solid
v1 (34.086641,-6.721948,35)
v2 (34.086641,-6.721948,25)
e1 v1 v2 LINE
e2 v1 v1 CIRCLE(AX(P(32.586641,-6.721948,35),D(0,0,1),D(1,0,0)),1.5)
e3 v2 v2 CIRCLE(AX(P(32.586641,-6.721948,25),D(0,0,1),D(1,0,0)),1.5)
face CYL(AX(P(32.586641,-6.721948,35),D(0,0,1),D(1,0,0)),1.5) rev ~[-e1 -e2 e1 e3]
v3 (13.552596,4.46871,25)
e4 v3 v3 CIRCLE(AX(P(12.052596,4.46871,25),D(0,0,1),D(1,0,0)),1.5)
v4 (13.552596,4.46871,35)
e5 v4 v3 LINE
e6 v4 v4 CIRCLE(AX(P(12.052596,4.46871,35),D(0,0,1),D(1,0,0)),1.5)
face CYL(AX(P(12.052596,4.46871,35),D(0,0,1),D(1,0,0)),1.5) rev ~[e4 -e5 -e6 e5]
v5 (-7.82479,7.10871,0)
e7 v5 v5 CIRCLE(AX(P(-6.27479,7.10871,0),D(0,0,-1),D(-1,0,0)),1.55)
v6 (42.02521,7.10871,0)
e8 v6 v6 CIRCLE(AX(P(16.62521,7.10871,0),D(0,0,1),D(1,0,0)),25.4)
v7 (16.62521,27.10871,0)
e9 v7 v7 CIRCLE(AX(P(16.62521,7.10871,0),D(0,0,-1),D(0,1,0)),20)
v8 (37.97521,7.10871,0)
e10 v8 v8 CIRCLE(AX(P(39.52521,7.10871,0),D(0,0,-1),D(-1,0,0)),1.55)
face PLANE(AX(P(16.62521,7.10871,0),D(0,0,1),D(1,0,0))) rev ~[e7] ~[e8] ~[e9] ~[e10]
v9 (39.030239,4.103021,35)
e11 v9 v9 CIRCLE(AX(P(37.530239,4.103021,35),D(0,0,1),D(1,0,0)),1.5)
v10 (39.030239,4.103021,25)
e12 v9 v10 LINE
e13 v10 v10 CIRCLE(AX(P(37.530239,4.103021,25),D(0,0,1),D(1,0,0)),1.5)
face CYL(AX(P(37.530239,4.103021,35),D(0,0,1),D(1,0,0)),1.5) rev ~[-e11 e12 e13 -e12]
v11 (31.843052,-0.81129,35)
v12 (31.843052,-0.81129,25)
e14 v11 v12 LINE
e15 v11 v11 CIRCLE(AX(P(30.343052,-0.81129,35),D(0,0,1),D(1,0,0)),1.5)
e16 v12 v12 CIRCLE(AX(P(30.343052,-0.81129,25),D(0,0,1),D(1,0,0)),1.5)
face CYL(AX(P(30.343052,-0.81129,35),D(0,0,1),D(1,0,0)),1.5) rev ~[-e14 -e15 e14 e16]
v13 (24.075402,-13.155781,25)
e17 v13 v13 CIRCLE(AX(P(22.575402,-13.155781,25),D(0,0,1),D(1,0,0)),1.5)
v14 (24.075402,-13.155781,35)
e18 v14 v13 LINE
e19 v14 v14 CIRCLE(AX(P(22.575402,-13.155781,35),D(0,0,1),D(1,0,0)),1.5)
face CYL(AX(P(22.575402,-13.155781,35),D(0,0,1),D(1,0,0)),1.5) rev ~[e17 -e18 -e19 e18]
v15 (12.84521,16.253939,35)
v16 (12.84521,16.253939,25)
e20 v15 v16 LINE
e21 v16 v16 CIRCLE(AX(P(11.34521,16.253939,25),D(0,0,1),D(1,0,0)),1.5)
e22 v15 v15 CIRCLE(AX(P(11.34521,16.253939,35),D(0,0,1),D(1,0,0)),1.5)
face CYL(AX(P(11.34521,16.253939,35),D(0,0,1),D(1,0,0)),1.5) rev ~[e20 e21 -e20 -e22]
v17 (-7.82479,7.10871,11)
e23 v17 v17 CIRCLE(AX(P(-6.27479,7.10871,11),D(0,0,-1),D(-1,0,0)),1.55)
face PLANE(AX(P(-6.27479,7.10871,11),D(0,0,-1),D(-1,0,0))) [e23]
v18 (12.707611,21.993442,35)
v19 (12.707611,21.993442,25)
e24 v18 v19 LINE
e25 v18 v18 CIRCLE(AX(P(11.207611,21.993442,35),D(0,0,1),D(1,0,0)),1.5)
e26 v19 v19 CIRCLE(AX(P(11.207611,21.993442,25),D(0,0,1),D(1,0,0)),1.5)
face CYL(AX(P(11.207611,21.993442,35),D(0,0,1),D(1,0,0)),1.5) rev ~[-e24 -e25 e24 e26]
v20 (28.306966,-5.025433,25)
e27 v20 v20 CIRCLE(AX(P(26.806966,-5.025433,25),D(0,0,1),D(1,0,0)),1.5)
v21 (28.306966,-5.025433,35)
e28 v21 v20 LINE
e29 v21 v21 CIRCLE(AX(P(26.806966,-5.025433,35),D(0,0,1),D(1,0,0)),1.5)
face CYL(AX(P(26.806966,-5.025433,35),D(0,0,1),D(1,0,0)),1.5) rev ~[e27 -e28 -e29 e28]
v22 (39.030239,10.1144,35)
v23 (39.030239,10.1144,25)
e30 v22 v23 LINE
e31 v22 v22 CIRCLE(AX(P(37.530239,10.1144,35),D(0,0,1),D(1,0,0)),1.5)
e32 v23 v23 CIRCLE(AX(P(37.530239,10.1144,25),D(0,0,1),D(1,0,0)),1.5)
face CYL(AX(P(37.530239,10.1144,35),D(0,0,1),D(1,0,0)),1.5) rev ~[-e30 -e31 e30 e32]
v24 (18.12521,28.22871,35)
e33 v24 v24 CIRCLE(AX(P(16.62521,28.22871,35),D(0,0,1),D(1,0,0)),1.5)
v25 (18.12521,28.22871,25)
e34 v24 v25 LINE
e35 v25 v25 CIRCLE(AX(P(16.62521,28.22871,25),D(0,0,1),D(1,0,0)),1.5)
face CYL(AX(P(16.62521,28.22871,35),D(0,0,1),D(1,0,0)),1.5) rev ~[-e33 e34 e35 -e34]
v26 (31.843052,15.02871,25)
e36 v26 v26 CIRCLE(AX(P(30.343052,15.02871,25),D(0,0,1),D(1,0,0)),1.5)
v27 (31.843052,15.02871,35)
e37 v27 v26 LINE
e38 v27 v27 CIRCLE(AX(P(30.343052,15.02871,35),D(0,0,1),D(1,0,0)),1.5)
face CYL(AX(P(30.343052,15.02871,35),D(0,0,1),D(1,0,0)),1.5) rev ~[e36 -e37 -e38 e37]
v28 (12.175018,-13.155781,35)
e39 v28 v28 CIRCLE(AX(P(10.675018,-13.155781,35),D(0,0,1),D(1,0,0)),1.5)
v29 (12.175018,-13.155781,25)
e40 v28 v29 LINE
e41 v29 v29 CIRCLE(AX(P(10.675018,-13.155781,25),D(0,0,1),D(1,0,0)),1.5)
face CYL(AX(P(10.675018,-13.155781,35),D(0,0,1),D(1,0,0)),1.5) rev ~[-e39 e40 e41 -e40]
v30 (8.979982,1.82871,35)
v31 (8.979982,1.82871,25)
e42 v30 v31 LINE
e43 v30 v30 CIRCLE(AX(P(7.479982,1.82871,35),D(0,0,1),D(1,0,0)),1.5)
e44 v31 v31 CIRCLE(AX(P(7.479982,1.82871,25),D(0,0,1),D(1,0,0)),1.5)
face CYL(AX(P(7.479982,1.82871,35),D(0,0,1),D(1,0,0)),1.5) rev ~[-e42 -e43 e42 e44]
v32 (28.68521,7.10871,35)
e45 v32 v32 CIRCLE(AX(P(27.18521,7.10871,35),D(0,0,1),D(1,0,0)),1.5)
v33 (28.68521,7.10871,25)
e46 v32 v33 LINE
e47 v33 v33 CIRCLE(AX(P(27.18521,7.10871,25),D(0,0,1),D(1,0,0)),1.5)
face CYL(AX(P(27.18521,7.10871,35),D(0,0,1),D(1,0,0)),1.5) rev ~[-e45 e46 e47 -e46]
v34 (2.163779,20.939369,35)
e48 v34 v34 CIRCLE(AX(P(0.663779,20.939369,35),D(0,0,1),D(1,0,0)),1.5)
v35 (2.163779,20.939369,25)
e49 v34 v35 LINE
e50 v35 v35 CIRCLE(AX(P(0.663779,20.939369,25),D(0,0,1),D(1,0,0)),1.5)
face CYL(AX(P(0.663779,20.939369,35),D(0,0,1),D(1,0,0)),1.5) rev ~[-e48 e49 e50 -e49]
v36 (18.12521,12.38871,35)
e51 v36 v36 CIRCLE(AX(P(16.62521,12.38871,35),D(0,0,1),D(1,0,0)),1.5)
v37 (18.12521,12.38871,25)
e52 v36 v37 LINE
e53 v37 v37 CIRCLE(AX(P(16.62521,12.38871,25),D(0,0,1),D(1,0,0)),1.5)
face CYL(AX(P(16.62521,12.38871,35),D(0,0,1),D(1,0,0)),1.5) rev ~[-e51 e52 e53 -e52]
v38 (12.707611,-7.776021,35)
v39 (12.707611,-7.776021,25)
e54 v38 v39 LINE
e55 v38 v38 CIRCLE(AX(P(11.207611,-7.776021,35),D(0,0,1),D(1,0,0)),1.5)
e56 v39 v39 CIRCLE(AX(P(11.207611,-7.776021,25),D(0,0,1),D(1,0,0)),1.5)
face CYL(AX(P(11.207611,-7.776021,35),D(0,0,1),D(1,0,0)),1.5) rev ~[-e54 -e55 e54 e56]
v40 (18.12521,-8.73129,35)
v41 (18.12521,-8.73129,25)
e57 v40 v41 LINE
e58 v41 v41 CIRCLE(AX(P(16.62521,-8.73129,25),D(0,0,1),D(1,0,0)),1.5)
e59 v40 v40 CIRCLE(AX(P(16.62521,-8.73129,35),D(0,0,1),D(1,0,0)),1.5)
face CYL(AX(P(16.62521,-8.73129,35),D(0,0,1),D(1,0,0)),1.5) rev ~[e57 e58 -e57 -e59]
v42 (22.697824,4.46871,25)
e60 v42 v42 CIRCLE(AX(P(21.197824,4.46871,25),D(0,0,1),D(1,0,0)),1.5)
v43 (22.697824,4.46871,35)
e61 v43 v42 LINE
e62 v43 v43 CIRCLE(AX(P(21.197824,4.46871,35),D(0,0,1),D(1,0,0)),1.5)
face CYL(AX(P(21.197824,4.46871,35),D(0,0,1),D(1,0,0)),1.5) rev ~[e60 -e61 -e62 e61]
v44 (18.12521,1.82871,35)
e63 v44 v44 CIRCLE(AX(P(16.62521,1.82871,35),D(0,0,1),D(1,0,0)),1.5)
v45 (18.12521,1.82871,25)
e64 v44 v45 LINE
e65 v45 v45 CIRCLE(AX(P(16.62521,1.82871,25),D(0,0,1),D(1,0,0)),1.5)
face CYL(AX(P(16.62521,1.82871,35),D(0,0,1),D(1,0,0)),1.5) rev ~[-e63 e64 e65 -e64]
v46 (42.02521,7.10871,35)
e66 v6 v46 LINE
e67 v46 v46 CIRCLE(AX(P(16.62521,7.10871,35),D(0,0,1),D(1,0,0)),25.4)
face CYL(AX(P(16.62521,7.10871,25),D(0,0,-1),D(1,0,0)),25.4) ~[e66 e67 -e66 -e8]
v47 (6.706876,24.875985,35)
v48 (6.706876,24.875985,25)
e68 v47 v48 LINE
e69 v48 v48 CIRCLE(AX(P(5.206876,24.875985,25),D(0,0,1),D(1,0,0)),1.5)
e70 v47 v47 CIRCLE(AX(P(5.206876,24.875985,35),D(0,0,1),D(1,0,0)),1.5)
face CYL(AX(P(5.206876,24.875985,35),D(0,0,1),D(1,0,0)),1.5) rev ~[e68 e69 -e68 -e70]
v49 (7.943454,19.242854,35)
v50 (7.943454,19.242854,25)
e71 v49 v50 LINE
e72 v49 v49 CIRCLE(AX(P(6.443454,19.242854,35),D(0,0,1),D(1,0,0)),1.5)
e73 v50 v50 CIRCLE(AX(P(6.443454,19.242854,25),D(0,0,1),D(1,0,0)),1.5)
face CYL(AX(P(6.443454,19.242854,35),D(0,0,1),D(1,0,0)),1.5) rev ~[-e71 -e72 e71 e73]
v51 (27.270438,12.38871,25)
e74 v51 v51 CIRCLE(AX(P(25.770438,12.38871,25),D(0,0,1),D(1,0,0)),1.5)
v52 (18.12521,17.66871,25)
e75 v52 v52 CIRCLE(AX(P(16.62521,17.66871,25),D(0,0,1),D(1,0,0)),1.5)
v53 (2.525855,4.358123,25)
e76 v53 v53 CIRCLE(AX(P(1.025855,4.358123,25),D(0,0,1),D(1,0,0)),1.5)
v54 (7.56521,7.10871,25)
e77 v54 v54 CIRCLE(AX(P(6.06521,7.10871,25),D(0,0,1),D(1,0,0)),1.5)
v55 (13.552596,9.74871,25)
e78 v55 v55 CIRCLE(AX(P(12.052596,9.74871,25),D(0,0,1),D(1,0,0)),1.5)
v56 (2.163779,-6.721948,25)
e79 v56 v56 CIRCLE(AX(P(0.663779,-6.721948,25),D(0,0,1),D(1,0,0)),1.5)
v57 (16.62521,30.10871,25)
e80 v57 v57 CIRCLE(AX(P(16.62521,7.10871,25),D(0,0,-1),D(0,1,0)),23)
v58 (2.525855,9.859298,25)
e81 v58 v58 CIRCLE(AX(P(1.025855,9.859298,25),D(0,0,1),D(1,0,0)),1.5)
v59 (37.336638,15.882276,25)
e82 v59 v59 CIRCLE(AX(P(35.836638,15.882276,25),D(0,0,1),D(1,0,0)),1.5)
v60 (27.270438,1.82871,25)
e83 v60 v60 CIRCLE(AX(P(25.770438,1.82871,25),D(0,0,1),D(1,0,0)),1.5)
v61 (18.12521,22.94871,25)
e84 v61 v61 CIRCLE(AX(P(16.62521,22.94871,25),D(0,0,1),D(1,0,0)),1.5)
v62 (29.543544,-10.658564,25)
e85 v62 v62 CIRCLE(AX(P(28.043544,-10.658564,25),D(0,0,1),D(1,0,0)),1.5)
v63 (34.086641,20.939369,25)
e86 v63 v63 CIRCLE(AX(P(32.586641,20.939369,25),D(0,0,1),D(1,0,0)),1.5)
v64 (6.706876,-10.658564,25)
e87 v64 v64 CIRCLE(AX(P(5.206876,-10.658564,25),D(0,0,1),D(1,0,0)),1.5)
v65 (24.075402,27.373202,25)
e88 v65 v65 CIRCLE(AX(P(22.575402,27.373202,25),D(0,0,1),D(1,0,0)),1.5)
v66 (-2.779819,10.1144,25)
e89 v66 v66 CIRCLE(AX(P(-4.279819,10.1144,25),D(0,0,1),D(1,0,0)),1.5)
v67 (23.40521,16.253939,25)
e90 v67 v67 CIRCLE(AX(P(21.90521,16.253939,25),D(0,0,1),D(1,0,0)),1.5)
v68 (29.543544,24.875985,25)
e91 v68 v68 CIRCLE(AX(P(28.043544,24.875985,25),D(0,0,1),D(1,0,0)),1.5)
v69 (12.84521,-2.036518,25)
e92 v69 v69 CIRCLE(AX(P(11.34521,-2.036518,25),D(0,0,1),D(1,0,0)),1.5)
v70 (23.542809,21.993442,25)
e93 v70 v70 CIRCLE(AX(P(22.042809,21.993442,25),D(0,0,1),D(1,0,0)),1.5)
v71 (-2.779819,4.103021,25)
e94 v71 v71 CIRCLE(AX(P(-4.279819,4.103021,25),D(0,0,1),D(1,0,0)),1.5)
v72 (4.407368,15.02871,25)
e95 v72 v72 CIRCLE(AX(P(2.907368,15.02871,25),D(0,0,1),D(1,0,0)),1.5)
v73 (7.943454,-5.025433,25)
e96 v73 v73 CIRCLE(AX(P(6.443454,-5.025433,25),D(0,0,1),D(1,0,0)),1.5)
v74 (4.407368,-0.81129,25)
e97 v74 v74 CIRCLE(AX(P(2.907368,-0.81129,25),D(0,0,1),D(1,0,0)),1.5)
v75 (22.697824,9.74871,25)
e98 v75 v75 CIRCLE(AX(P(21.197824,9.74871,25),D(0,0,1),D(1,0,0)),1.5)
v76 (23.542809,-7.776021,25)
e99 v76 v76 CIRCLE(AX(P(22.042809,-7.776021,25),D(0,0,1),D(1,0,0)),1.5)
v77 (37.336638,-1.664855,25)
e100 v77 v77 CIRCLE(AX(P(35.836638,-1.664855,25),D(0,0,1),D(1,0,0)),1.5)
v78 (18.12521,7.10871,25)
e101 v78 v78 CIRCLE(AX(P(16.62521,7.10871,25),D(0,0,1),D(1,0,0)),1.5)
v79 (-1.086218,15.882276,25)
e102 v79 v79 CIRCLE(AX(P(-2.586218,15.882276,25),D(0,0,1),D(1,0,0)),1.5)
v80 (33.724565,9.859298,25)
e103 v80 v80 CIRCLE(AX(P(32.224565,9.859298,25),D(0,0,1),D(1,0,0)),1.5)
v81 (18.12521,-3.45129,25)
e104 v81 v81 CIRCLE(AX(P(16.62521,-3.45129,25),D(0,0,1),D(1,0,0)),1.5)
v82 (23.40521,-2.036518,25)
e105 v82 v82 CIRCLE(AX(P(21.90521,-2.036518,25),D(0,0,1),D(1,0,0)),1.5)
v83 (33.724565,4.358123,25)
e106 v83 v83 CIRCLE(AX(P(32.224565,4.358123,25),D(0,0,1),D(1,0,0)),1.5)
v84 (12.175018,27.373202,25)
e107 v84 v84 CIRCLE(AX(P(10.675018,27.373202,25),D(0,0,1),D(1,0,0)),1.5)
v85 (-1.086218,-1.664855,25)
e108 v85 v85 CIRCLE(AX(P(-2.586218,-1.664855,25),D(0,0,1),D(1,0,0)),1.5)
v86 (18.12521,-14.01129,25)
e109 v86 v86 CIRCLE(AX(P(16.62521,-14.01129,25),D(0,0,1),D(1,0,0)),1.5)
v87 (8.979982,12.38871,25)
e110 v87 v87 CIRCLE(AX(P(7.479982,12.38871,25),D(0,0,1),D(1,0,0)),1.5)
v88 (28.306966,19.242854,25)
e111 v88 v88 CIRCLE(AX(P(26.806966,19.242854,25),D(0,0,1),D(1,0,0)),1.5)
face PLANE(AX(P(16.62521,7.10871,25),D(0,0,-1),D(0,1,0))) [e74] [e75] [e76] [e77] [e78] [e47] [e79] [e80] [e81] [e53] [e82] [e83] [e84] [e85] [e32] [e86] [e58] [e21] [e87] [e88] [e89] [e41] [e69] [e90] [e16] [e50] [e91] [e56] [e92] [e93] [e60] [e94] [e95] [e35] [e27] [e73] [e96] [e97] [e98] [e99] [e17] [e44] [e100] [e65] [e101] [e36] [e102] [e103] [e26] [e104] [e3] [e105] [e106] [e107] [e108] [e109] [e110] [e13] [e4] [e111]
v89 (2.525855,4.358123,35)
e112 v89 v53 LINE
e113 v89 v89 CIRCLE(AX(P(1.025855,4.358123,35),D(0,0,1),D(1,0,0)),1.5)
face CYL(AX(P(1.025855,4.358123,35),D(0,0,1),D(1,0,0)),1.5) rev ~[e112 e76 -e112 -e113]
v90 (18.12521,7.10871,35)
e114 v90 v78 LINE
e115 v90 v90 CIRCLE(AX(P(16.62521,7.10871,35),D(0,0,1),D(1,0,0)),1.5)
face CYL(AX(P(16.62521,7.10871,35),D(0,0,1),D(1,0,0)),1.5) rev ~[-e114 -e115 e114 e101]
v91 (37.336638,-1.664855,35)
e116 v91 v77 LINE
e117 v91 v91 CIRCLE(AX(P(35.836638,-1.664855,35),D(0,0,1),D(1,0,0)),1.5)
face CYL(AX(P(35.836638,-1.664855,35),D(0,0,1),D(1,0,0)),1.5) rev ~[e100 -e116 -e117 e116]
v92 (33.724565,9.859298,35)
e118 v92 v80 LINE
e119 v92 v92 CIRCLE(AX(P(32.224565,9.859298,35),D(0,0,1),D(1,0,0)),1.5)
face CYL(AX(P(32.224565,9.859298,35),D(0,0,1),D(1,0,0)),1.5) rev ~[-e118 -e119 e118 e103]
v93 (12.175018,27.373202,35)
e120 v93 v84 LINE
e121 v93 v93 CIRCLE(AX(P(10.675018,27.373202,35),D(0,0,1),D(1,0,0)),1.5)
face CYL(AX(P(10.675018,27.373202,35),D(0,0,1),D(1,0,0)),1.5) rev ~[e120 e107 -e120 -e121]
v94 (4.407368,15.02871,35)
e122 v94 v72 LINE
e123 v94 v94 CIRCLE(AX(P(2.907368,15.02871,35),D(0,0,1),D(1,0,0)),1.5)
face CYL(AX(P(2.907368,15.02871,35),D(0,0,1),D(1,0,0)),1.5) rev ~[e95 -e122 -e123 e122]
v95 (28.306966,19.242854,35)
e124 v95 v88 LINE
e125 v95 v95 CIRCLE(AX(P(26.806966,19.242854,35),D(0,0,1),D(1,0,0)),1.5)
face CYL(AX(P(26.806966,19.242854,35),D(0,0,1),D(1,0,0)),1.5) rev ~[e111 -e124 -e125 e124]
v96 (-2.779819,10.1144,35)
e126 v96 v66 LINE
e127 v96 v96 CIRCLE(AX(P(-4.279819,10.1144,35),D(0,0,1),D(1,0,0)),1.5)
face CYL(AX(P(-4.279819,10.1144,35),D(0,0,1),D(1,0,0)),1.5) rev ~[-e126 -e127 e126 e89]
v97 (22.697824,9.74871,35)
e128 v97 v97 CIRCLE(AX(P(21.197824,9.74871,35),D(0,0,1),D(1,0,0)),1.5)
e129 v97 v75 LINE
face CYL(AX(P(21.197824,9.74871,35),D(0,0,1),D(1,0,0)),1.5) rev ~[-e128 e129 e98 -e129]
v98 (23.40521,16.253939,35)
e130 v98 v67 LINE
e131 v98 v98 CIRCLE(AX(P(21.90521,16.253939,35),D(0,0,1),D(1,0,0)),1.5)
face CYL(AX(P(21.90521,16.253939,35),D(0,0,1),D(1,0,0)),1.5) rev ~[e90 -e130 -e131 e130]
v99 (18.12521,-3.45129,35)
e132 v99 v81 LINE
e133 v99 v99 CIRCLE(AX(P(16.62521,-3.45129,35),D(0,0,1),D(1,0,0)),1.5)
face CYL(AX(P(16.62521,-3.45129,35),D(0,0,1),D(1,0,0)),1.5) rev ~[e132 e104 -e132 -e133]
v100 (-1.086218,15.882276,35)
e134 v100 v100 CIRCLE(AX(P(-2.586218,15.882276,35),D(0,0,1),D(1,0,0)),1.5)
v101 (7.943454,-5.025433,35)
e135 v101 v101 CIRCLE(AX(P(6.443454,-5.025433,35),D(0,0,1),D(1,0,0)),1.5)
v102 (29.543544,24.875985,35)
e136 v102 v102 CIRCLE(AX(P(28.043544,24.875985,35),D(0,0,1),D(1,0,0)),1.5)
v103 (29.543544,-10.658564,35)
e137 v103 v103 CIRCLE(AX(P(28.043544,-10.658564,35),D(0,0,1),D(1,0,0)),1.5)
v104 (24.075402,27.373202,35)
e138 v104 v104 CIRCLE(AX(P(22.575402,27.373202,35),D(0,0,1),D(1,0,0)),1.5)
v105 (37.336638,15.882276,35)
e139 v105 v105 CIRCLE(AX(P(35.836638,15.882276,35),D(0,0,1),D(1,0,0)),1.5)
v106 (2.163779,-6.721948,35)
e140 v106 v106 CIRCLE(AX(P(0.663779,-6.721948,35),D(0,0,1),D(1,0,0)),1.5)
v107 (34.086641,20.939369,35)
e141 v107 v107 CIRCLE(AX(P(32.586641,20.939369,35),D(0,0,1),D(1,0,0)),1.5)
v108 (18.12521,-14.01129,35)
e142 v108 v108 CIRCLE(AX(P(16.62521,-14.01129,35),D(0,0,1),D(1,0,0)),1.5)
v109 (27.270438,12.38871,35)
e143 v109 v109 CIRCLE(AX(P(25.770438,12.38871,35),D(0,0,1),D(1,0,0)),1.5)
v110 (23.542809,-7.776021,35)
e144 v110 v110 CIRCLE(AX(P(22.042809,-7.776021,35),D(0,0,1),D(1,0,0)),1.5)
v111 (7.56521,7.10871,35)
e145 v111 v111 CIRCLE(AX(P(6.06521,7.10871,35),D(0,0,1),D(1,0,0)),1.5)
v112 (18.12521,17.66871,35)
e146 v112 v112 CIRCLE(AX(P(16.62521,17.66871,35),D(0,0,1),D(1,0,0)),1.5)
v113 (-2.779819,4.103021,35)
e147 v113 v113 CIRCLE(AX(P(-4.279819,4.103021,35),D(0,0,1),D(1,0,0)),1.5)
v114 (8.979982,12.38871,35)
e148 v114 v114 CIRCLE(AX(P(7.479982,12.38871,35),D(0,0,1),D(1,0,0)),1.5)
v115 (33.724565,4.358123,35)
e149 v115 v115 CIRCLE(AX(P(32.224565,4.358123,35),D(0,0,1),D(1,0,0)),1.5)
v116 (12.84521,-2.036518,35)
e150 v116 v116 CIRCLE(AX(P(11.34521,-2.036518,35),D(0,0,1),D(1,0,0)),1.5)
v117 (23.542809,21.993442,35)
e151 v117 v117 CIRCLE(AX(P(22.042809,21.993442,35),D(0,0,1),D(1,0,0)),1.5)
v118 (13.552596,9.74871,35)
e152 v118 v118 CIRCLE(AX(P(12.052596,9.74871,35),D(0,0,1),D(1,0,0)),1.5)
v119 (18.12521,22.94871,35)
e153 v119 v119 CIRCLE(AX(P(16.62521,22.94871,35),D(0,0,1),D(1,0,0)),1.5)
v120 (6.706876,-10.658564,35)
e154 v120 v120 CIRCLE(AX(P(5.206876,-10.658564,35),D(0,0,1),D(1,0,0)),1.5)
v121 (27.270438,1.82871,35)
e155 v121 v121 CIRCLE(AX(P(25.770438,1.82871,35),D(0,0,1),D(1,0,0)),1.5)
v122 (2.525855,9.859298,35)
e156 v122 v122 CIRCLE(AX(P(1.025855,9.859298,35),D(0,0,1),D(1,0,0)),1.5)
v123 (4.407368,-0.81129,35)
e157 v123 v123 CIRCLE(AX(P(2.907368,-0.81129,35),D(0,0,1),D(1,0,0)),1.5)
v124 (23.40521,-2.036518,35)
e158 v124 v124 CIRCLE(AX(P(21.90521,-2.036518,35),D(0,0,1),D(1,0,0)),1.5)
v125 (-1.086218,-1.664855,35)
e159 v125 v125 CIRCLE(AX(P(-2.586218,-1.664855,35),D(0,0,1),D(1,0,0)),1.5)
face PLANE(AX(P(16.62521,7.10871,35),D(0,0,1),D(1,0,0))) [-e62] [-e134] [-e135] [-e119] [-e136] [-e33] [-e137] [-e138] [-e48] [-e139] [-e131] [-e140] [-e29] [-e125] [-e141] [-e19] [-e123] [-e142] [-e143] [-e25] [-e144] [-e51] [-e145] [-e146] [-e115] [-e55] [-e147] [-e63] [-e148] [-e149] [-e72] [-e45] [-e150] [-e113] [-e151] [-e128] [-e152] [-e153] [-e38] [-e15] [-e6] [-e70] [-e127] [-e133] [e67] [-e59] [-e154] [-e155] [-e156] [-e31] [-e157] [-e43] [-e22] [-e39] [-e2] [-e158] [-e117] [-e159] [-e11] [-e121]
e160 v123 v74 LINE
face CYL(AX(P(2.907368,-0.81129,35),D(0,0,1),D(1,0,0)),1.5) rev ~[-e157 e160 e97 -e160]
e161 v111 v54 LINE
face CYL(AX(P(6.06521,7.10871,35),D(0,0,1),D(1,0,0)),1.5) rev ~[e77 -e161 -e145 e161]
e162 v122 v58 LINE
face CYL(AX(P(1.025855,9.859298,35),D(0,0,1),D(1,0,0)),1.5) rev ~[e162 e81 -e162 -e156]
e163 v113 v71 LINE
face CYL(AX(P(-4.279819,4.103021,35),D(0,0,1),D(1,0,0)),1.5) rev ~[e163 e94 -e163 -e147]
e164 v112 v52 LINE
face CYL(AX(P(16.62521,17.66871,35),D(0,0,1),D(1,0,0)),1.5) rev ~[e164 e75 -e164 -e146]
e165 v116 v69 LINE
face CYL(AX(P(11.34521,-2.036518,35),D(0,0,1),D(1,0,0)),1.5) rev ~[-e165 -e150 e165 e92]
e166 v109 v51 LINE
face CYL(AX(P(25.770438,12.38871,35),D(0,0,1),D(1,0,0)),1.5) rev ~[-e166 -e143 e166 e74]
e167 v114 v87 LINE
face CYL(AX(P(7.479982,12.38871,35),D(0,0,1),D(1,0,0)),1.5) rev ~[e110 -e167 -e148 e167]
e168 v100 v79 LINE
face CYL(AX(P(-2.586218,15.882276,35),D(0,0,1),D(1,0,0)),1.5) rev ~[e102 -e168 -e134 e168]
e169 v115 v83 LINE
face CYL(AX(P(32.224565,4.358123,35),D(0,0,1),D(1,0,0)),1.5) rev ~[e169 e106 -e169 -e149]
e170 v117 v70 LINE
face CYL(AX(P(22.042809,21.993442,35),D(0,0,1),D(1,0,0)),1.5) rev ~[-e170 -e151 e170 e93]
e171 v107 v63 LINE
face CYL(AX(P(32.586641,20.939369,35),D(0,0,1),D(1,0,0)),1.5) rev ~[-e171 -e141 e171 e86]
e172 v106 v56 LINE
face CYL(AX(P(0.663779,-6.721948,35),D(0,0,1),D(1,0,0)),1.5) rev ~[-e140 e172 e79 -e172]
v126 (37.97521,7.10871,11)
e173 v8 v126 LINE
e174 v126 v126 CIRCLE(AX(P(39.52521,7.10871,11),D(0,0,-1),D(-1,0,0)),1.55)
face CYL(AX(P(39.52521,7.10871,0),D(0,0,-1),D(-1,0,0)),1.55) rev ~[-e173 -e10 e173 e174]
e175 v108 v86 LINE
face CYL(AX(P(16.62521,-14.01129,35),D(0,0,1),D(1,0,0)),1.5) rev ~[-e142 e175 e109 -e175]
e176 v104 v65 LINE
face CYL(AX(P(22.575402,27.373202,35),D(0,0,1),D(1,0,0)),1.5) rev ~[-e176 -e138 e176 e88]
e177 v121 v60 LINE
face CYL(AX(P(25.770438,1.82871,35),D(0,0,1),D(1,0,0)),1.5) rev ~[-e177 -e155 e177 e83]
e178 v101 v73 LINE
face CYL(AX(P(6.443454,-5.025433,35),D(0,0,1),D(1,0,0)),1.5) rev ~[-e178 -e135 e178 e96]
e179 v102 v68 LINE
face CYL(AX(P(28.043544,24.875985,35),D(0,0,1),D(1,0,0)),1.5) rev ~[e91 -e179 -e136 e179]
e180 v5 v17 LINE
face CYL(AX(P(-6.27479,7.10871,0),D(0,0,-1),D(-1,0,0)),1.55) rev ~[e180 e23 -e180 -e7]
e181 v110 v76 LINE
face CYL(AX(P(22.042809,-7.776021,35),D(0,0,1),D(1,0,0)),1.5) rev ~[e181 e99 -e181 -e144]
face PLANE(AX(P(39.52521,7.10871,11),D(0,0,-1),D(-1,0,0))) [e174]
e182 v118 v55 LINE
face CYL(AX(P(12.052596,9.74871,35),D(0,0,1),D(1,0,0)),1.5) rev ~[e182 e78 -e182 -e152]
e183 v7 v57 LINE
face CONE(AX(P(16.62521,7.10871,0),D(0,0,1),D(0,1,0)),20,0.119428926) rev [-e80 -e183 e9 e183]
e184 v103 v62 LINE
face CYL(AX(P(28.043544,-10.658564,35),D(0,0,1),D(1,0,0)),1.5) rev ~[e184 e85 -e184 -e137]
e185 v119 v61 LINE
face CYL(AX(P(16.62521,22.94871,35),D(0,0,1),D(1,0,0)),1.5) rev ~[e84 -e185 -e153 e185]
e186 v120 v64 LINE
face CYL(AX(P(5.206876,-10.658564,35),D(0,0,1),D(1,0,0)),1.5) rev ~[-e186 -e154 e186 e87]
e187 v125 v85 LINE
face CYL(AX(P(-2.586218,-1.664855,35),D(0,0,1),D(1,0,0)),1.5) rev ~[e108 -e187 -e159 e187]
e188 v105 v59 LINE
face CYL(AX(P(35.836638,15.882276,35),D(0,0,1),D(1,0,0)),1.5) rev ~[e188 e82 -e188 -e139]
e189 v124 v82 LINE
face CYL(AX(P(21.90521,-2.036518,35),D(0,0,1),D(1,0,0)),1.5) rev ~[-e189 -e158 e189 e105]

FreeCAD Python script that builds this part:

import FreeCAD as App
import Part
import Sketcher
Q = App.Units.Quantity

doc = App.newDocument("Part")
body = doc.addObject("PartDesign::Body", "Body")

# Sketch on XY plane
sketch1 = body.newObject("Sketcher::SketchObject", "Sketch")
sketch1.AttachmentSupport = (doc.getObject("XY_Plane"), [""])
sketch1.MapMode = "FlatFace"
sketch1.addGeometry(Part.Circle(App.Vector(16.62521, 7.10871, 0), App.Vector(0, 0, 1), 25.4), False)
sketch1.addConstraint(Sketcher.Constraint("Diameter", 0, Q("50.8 mm")))
sketch1.addConstraint(Sketcher.Constraint("DistanceX", -1, 1, 0, 3, Q("16.62521 mm")))
sketch1.addConstraint(Sketcher.Constraint("DistanceY", -1, 1, 0, 3, Q("7.10871 mm")))
pad1 = body.newObject("PartDesign::Pad", "Pad")
pad1.Profile = sketch1
pad1.Length = 25

# Sketch on XY plane
sketch2 = body.newObject("Sketcher::SketchObject", "Sketch001")
sketch2.AttachmentSupport = (doc.getObject("XY_Plane"), [""])
sketch2.MapMode = "FlatFace"
sketch2.addGeometry(Part.Circle(App.Vector(39.52521, 7.10871, 0), App.Vector(0, 0, 1), 1.55), False)
sketch2.addGeometry(Part.Circle(App.Vector(-6.27479, 7.10871, 0), App.Vector(0, 0, 1), 1.55), False)
sketch2.addConstraint(Sketcher.Constraint("Equal", 0, 1))
sketch2.addConstraint(Sketcher.Constraint("Horizontal", 0, 3, 1, 3))
sketch2.addConstraint(Sketcher.Constraint("Diameter", 0, Q("3.1 mm")))
sketch2.addConstraint(Sketcher.Constraint("DistanceX", 1, 3, 0, 3, Q("45.8 mm")))
sketch2.addConstraint(Sketcher.Constraint("DistanceX", -1, 1, 0, 3, Q("39.52521 mm")))
sketch2.addConstraint(Sketcher.Constraint("DistanceY", -1, 1, 0, 3, Q("7.10871 mm")))
pocket1 = body.newObject("PartDesign::Pocket", "Pocket")
pocket1.Profile = sketch2
pocket1.Length = 11
pocket1.Reversed = True

# Sketch on XY plane
sketch3 = body.newObject("Sketcher::SketchObject", "Sketch002")
sketch3.AttachmentSupport = (doc.getObject("XY_Plane"), [""])
sketch3.MapMode = "FlatFace"
sketch3.AttachmentOffset = App.Placement(App.Vector(0, 0, 25), App.Rotation())
sketch3.addGeometry(Part.Circle(App.Vector(16.62521, 7.10871, 0), App.Vector(0, 0, 1), 25.4), False)
sketch3.addConstraint(Sketcher.Constraint("Diameter", 0, Q("50.8 mm")))
sketch3.addConstraint(Sketcher.Constraint("DistanceX", -1, 1, 0, 3, Q("16.62521 mm")))
sketch3.addConstraint(Sketcher.Constraint("DistanceY", -1, 1, 0, 3, Q("7.10871 mm")))
pad2 = body.newObject("PartDesign::Pad", "Pad001")
pad2.Profile = sketch3
pad2.Length = 10

# Sketch on XY plane
sketch4 = body.newObject("Sketcher::SketchObject", "Sketch003")
sketch4.AttachmentSupport = (doc.getObject("XY_Plane"), [""])
sketch4.MapMode = "FlatFace"
sketch4.AttachmentOffset = App.Placement(App.Vector(0, 0, 35), App.Rotation())
sketch4.addGeometry(Part.Circle(App.Vector(16.62521, 7.10871, 0), App.Vector(0, 0, 1), 1.5), False)
sketch4.addGeometry(Part.Circle(App.Vector(16.62521, 12.38871, 0), App.Vector(0, 0, 1), 1.5), False)
sketch4.addGeometry(Part.Circle(App.Vector(21.197824, 9.74871, 0), App.Vector(0, 0, 1), 1.5), False)
sketch4.addGeometry(Part.Circle(App.Vector(21.197824, 4.46871, 0), App.Vector(0, 0, 1), 1.5), False)
sketch4.addGeometry(Part.Circle(App.Vector(16.62521, 1.82871, 0), App.Vector(0, 0, 1), 1.5), False)
sketch4.addGeometry(Part.Circle(App.Vector(12.052596, 4.46871, 0), App.Vector(0, 0, 1), 1.5), False)
sketch4.addGeometry(Part.Circle(App.Vector(12.052596, 9.74871, 0), App.Vector(0, 0, 1), 1.5), False)
sketch4.addGeometry(Part.Circle(App.Vector(16.62521, 17.66871, 0), App.Vector(0, 0, 1), 1.5), False)
sketch4.addGeometry(Part.Circle(App.Vector(21.90521, 16.253939, 0), App.Vector(0, 0, 1), 1.5), False)
sketch4.addGeometry(Part.Circle(App.Vector(25.770438, 12.38871, 0), App.Vector(0, 0, 1), 1.5), False)
sketch4.addGeometry(Part.Circle(App.Vector(27.18521, 7.10871, 0), App.Vector(0, 0, 1), 1.5), False)
sketch4.addGeometry(Part.Circle(App.Vector(25.770438, 1.82871, 0), App.Vector(0, 0, 1), 1.5), False)
sketch4.addGeometry(Part.Circle(App.Vector(21.90521, -2.036518, 0), App.Vector(0, 0, 1), 1.5), False)
sketch4.addGeometry(Part.Circle(App.Vector(16.62521, -3.45129, 0), App.Vector(0, 0, 1), 1.5), False)
sketch4.addGeometry(Part.Circle(App.Vector(11.34521, -2.036518, 0), App.Vector(0, 0, 1), 1.5), False)
sketch4.addGeometry(Part.Circle(App.Vector(7.479982, 1.82871, 0), App.Vector(0, 0, 1), 1.5), False)
sketch4.addGeometry(Part.Circle(App.Vector(6.06521, 7.10871, 0), App.Vector(0, 0, 1), 1.5), False)
sketch4.addGeometry(Part.Circle(App.Vector(7.479982, 12.38871, 0), App.Vector(0, 0, 1), 1.5), False)
sketch4.addGeometry(Part.Circle(App.Vector(11.34521, 16.253939, 0), App.Vector(0, 0, 1), 1.5), False)
sketch4.addGeometry(Part.Circle(App.Vector(16.62521, 22.94871, 0), App.Vector(0, 0, 1), 1.5), False)
sketch4.addGeometry(Part.Circle(App.Vector(22.042809, 21.993442, 0), App.Vector(0, 0, 1), 1.5), False)
sketch4.addGeometry(Part.Circle(App.Vector(26.806966, 19.242854, 0), App.Vector(0, 0, 1), 1.5), False)
sketch4.addGeometry(Part.Circle(App.Vector(30.343052, 15.02871, 0), App.Vector(0, 0, 1), 1.5), False)
sketch4.addGeometry(Part.Circle(App.Vector(32.224565, 9.859298, 0), App.Vector(0, 0, 1), 1.5), False)
sketch4.addGeometry(Part.Circle(App.Vector(32.224565, 4.358123, 0), App.Vector(0, 0, 1), 1.5), False)
sketch4.addGeometry(Part.Circle(App.Vector(30.343052, -0.81129, 0), App.Vector(0, 0, 1), 1.5), False)
sketch4.addGeometry(Part.Circle(App.Vector(26.806966, -5.025433, 0), App.Vector(0, 0, 1), 1.5), False)
sketch4.addGeometry(Part.Circle(App.Vector(22.042809, -7.776021, 0), App.Vector(0, 0, 1), 1.5), False)
sketch4.addGeometry(Part.Circle(App.Vector(16.62521, -8.73129, 0), App.Vector(0, 0, 1), 1.5), False)
sketch4.addGeometry(Part.Circle(App.Vector(11.207611, -7.776021, 0), App.Vector(0, 0, 1), 1.5), False)
sketch4.addGeometry(Part.Circle(App.Vector(6.443454, -5.025433, 0), App.Vector(0, 0, 1), 1.5), False)
sketch4.addGeometry(Part.Circle(App.Vector(2.907368, -0.81129, 0), App.Vector(0, 0, 1), 1.5), False)
sketch4.addGeometry(Part.Circle(App.Vector(1.025855, 4.358123, 0), App.Vector(0, 0, 1), 1.5), False)
sketch4.addGeometry(Part.Circle(App.Vector(1.025855, 9.859298, 0), App.Vector(0, 0, 1), 1.5), False)
sketch4.addGeometry(Part.Circle(App.Vector(2.907368, 15.02871, 0), App.Vector(0, 0, 1), 1.5), False)
sketch4.addGeometry(Part.Circle(App.Vector(6.443454, 19.242854, 0), App.Vector(0, 0, 1), 1.5), False)
sketch4.addGeometry(Part.Circle(App.Vector(11.207611, 21.993442, 0), App.Vector(0, 0, 1), 1.5), False)
sketch4.addGeometry(Part.Circle(App.Vector(16.62521, 28.22871, 0), App.Vector(0, 0, 1), 1.5), False)
sketch4.addGeometry(Part.Circle(App.Vector(22.575402, 27.373202, 0), App.Vector(0, 0, 1), 1.5), False)
sketch4.addGeometry(Part.Circle(App.Vector(28.043544, 24.875985, 0), App.Vector(0, 0, 1), 1.5), False)
sketch4.addGeometry(Part.Circle(App.Vector(32.586641, 20.939369, 0), App.Vector(0, 0, 1), 1.5), False)
sketch4.addGeometry(Part.Circle(App.Vector(35.836638, 15.882276, 0), App.Vector(0, 0, 1), 1.5), False)
sketch4.addGeometry(Part.Circle(App.Vector(37.530239, 10.1144, 0), App.Vector(0, 0, 1), 1.5), False)
sketch4.addGeometry(Part.Circle(App.Vector(37.530239, 4.103021, 0), App.Vector(0, 0, 1), 1.5), False)
sketch4.addGeometry(Part.Circle(App.Vector(35.836638, -1.664855, 0), App.Vector(0, 0, 1), 1.5), False)
sketch4.addGeometry(Part.Circle(App.Vector(32.586641, -6.721948, 0), App.Vector(0, 0, 1), 1.5), False)
sketch4.addGeometry(Part.Circle(App.Vector(28.043544, -10.658564, 0), App.Vector(0, 0, 1), 1.5), False)
sketch4.addGeometry(Part.Circle(App.Vector(22.575402, -13.155781, 0), App.Vector(0, 0, 1), 1.5), False)
sketch4.addGeometry(Part.Circle(App.Vector(16.62521, -14.01129, 0), App.Vector(0, 0, 1), 1.5), False)
sketch4.addGeometry(Part.Circle(App.Vector(10.675018, -13.155781, 0), App.Vector(0, 0, 1), 1.5), False)
sketch4.addGeometry(Part.Circle(App.Vector(5.206876, -10.658564, 0), App.Vector(0, 0, 1), 1.5), False)
sketch4.addGeometry(Part.Circle(App.Vector(0.663779, -6.721948, 0), App.Vector(0, 0, 1), 1.5), False)
sketch4.addGeometry(Part.Circle(App.Vector(-2.586218, -1.664855, 0), App.Vector(0, 0, 1), 1.5), False)
sketch4.addGeometry(Part.Circle(App.Vector(-4.279819, 4.103021, 0), App.Vector(0, 0, 1), 1.5), False)
sketch4.addGeometry(Part.Circle(App.Vector(-4.279819, 10.1144, 0), App.Vector(0, 0, 1), 1.5), False)
sketch4.addGeometry(Part.Circle(App.Vector(-2.586218, 15.882276, 0), App.Vector(0, 0, 1), 1.5), False)
sketch4.addGeometry(Part.Circle(App.Vector(0.663779, 20.939369, 0), App.Vector(0, 0, 1), 1.5), False)
sketch4.addGeometry(Part.Circle(App.Vector(5.206876, 24.875985, 0), App.Vector(0, 0, 1), 1.5), False)
sketch4.addGeometry(Part.Circle(App.Vector(10.675018, 27.373202, 0), App.Vector(0, 0, 1), 1.5), False)
sketch4.addConstraint(Sketcher.Constraint("Equal", 0, 1))
sketch4.addConstraint(Sketcher.Constraint("Equal", 1, 2))
sketch4.addConstraint(Sketcher.Constraint("Equal", 2, 3))
sketch4.addConstraint(Sketcher.Constraint("Equal", 3, 4))
sketch4.addConstraint(Sketcher.Constraint("Equal", 4, 5))
sketch4.addConstraint(Sketcher.Constraint("Equal", 5, 6))
sketch4.addConstraint(Sketcher.Constraint("Equal", 6, 7))
sketch4.addConstraint(Sketcher.Constraint("Equal", 7, 8))
sketch4.addConstraint(Sketcher.Constraint("Equal", 8, 9))
sketch4.addConstraint(Sketcher.Constraint("Equal", 9, 10))
sketch4.addConstraint(Sketcher.Constraint("Equal", 10, 11))
sketch4.addConstraint(Sketcher.Constraint("Equal", 11, 12))
sketch4.addConstraint(Sketcher.Constraint("Equal", 12, 13))
sketch4.addConstraint(Sketcher.Constraint("Equal", 13, 14))
sketch4.addConstraint(Sketcher.Constraint("Equal", 14, 15))
sketch4.addConstraint(Sketcher.Constraint("Equal", 15, 16))
sketch4.addConstraint(Sketcher.Constraint("Equal", 16, 17))
sketch4.addConstraint(Sketcher.Constraint("Equal", 17, 18))
sketch4.addConstraint(Sketcher.Constraint("Equal", 18, 19))
sketch4.addConstraint(Sketcher.Constraint("Equal", 19, 20))
sketch4.addConstraint(Sketcher.Constraint("Equal", 20, 21))
sketch4.addConstraint(Sketcher.Constraint("Equal", 21, 22))
sketch4.addConstraint(Sketcher.Constraint("Equal", 22, 23))
sketch4.addConstraint(Sketcher.Constraint("Equal", 23, 24))
sketch4.addConstraint(Sketcher.Constraint("Equal", 24, 25))
sketch4.addConstraint(Sketcher.Constraint("Equal", 25, 26))
sketch4.addConstraint(Sketcher.Constraint("Equal", 26, 27))
sketch4.addConstraint(Sketcher.Constraint("Equal", 27, 28))
sketch4.addConstraint(Sketcher.Constraint("Equal", 28, 29))
sketch4.addConstraint(Sketcher.Constraint("Equal", 29, 30))
sketch4.addConstraint(Sketcher.Constraint("Equal", 30, 31))
sketch4.addConstraint(Sketcher.Constraint("Equal", 31, 32))
sketch4.addConstraint(Sketcher.Constraint("Equal", 32, 33))
sketch4.addConstraint(Sketcher.Constraint("Equal", 33, 34))
sketch4.addConstraint(Sketcher.Constraint("Equal", 34, 35))
sketch4.addConstraint(Sketcher.Constraint("Equal", 35, 36))
sketch4.addConstraint(Sketcher.Constraint("Equal", 36, 37))
sketch4.addConstraint(Sketcher.Constraint("Equal", 37, 38))
sketch4.addConstraint(Sketcher.Constraint("Equal", 38, 39))
sketch4.addConstraint(Sketcher.Constraint("Equal", 39, 40))
sketch4.addConstraint(Sketcher.Constraint("Equal", 40, 41))
sketch4.addConstraint(Sketcher.Constraint("Equal", 41, 42))
sketch4.addConstraint(Sketcher.Constraint("Equal", 42, 43))
sketch4.addConstraint(Sketcher.Constraint("Equal", 43, 44))
sketch4.addConstraint(Sketcher.Constraint("Equal", 44, 45))
sketch4.addConstraint(Sketcher.Constraint("Equal", 45, 46))
sketch4.addConstraint(Sketcher.Constraint("Equal", 46, 47))
sketch4.addConstraint(Sketcher.Constraint("Equal", 47, 48))
sketch4.addConstraint(Sketcher.Constraint("Equal", 48, 49))
sketch4.addConstraint(Sketcher.Constraint("Equal", 49, 50))
sketch4.addConstraint(Sketcher.Constraint("Equal", 50, 51))
sketch4.addConstraint(Sketcher.Constraint("Equal", 51, 52))
sketch4.addConstraint(Sketcher.Constraint("Equal", 52, 53))
sketch4.addConstraint(Sketcher.Constraint("Equal", 53, 54))
sketch4.addConstraint(Sketcher.Constraint("Equal", 54, 55))
sketch4.addConstraint(Sketcher.Constraint("Equal", 55, 56))
sketch4.addConstraint(Sketcher.Constraint("Equal", 56, 57))
sketch4.addConstraint(Sketcher.Constraint("Equal", 57, 58))
sketch4.addConstraint(Sketcher.Constraint("Horizontal", 3, 3, 5, 3))
sketch4.addConstraint(Sketcher.Constraint("Horizontal", 2, 3, 6, 3))
sketch4.addConstraint(Sketcher.Constraint("Horizontal", 1, 3, 9, 3))
sketch4.addConstraint(Sketcher.Constraint("Horizontal", 0, 3, 10, 3))
sketch4.addConstraint(Sketcher.Constraint("Horizontal", 4, 3, 11, 3))
sketch4.addConstraint(Sketcher.Constraint("Horizontal", 12, 3, 14, 3))
sketch4.addConstraint(Sketcher.Constraint("Horizontal", 11, 3, 15, 3))
sketch4.addConstraint(Sketcher.Constraint("Horizontal", 10, 3, 16, 3))
sketch4.addConstraint(Sketcher.Constraint("Horizontal", 9, 3, 17, 3))
sketch4.addConstraint(Sketcher.Constraint("Horizontal", 8, 3, 18, 3))
sketch4.addConstraint(Sketcher.Constraint("Horizontal", 27, 3, 29, 3))
sketch4.addConstraint(Sketcher.Constraint("Horizontal", 26, 3, 30, 3))
sketch4.addConstraint(Sketcher.Constraint("Horizontal", 25, 3, 31, 3))
sketch4.addConstraint(Sketcher.Constraint("Horizontal", 24, 3, 32, 3))
sketch4.addConstraint(Sketcher.Constraint("Horizontal", 23, 3, 33, 3))
sketch4.addConstraint(Sketcher.Constraint("Horizontal", 22, 3, 34, 3))
sketch4.addConstraint(Sketcher.Constraint("Horizontal", 21, 3, 35, 3))
sketch4.addConstraint(Sketcher.Constraint("Horizontal", 20, 3, 36, 3))
sketch4.addConstraint(Sketcher.Constraint("Horizontal", 47, 3, 49, 3))
sketch4.addConstraint(Sketcher.Constraint("Horizontal", 46, 3, 50, 3))
sketch4.addConstraint(Sketcher.Constraint("Horizontal", 45, 3, 51, 3))
sketch4.addConstraint(Sketcher.Constraint("Horizontal", 44, 3, 52, 3))
sketch4.addConstraint(Sketcher.Constraint("Horizontal", 43, 3, 53, 3))
sketch4.addConstraint(Sketcher.Constraint("Horizontal", 42, 3, 54, 3))
sketch4.addConstraint(Sketcher.Constraint("Horizontal", 41, 3, 55, 3))
sketch4.addConstraint(Sketcher.Constraint("Horizontal", 40, 3, 56, 3))
sketch4.addConstraint(Sketcher.Constraint("Horizontal", 39, 3, 57, 3))
sketch4.addConstraint(Sketcher.Constraint("Horizontal", 38, 3, 58, 3))
sketch4.addConstraint(Sketcher.Constraint("Vertical", 0, 3, 1, 3))
sketch4.addConstraint(Sketcher.Constraint("Vertical", 2, 3, 3, 3))
sketch4.addConstraint(Sketcher.Constraint("Vertical", 1, 3, 4, 3))
sketch4.addConstraint(Sketcher.Constraint("Vertical", 5, 3, 6, 3))
sketch4.addConstraint(Sketcher.Constraint("Vertical", 4, 3, 7, 3))
sketch4.addConstraint(Sketcher.Constraint("Vertical", 9, 3, 11, 3))
sketch4.addConstraint(Sketcher.Constraint("Vertical", 8, 3, 12, 3))
sketch4.addConstraint(Sketcher.Constraint("Vertical", 7, 3, 13, 3))
sketch4.addConstraint(Sketcher.Constraint("Vertical", 15, 3, 17, 3))
sketch4.addConstraint(Sketcher.Constraint("Vertical", 14, 3, 18, 3))
sketch4.addConstraint(Sketcher.Constraint("Vertical", 13, 3, 19, 3))
sketch4.addConstraint(Sketcher.Constraint("Vertical", 23, 3, 24, 3))
sketch4.addConstraint(Sketcher.Constraint("Vertical", 22, 3, 25, 3))
sketch4.addConstraint(Sketcher.Constraint("Vertical", 21, 3, 26, 3))
sketch4.addConstraint(Sketcher.Constraint("Vertical", 20, 3, 27, 3))
sketch4.addConstraint(Sketcher.Constraint("Vertical", 19, 3, 28, 3))
sketch4.addConstraint(Sketcher.Constraint("Vertical", 32, 3, 33, 3))
sketch4.addConstraint(Sketcher.Constraint("Vertical", 31, 3, 34, 3))
sketch4.addConstraint(Sketcher.Constraint("Vertical", 30, 3, 35, 3))
sketch4.addConstraint(Sketcher.Constraint("Vertical", 29, 3, 36, 3))
sketch4.addConstraint(Sketcher.Constraint("Vertical", 28, 3, 37, 3))
sketch4.addConstraint(Sketcher.Constraint("Vertical", 42, 3, 43, 3))
sketch4.addConstraint(Sketcher.Constraint("Vertical", 41, 3, 44, 3))
sketch4.addConstraint(Sketcher.Constraint("Vertical", 40, 3, 45, 3))
sketch4.addConstraint(Sketcher.Constraint("Vertical", 39, 3, 46, 3))
sketch4.addConstraint(Sketcher.Constraint("Vertical", 38, 3, 47, 3))
sketch4.addConstraint(Sketcher.Constraint("Vertical", 37, 3, 48, 3))
sketch4.addConstraint(Sketcher.Constraint("Vertical", 53, 3, 54, 3))
sketch4.addConstraint(Sketcher.Constraint("Vertical", 52, 3, 55, 3))
sketch4.addConstraint(Sketcher.Constraint("Vertical", 51, 3, 56, 3))
sketch4.addConstraint(Sketcher.Constraint("Vertical", 50, 3, 57, 3))
sketch4.addConstraint(Sketcher.Constraint("Vertical", 49, 3, 58, 3))
sketch4.addConstraint(Sketcher.Constraint("Diameter", 0, Q("3 mm")))
sketch4.addConstraint(Sketcher.Constraint("DistanceY", 3, 3, 7, 3, Q("13.2 mm")))
sketch4.addConstraint(Sketcher.Constraint("DistanceY", 2, 3, 19, 3, Q("13.2 mm")))
sketch4.addConstraint(Sketcher.Constraint("DistanceY", 0, 3, 1, 3, Q("5.28 mm")))
sketch4.addConstraint(Sketcher.Constraint("DistanceY", 0, 3, 2, 3, Q("2.64 mm")))
sketch4.addConstraint(Sketcher.Constraint("DistanceY", 3, 3, 2, 3, Q("5.28 mm")))
sketch4.addConstraint(Sketcher.Constraint("DistanceY", 4, 3, 0, 3, Q("5.28 mm")))
sketch4.addConstraint(Sketcher.Constraint("DistanceX", 7, 3, 8, 3, Q("5.28 mm")))
sketch4.addConstraint(Sketcher.Constraint("DistanceX", 0, 3, 10, 3, Q("10.56 mm")))
sketch4.addConstraint(Sketcher.Constraint("DistanceY", 13, 3, 4, 3, Q("5.28 mm")))
sketch4.addConstraint(Sketcher.Constraint("DistanceX", 14, 3, 13, 3, Q("5.28 mm")))
sketch4.addConstraint(Sketcher.Constraint("DistanceX", 16, 3, 0, 3, Q("10.56 mm")))
sketch4.addConstraint(Sketcher.Constraint("DistanceY", 9, 3, 22, 3, Q("2.64 mm")))
sketch4.addConstraint(Sketcher.Constraint("DistanceY", 25, 3, 11, 3, Q("2.64 mm")))
sketch4.addConstraint(Sketcher.Constraint("DistanceY", 28, 3, 13, 3, Q("5.28 mm")))
sketch4.addConstraint(Sketcher.Constraint("DistanceY", 19, 3, 37, 3, Q("5.28 mm")))
sketch4.addConstraint(Sketcher.Constraint("DistanceY", 48, 3, 28, 3, Q("5.28 mm")))
sketch4.addConstraint(Sketcher.Constraint("DistanceX", -1, 1, 38, 3, Q("22.575402 mm")))
sketch4.addConstraint(Sketcher.Constraint("DistanceY", -1, 1, 42, 3, Q("10.1144 mm")))
sketch4.addConstraint(Sketcher.Constraint("DistanceX", 19, 3, 20, 3, Q("5.417599 mm")))
sketch4.addConstraint(Sketcher.Constraint("DistanceX", 21, 3, 23, 3, Q("5.417599 mm")))
sketch4.addConstraint(Sketcher.Constraint("DistanceX", 29, 3, 28, 3, Q("5.417599 mm")))
sketch4.addConstraint(Sketcher.Constraint("DistanceX", 32, 3, 30, 3, Q("5.417599 mm")))
sketch4.addConstraint(Sketcher.Constraint("DistanceX", 9, 3, 41, 3, Q("10.066199 mm")))
sketch4.addConstraint(Sketcher.Constraint("DistanceX", 41, 3, 42, 3, Q("1.693601 mm")))
sketch4.addConstraint(Sketcher.Constraint("DistanceX", 52, 3, 15, 3, Q("10.066199 mm")))
sketch4.addConstraint(Sketcher.Constraint("DistanceX", 53, 3, 52, 3, Q("1.693601 mm")))
sketch4.addConstraint(Sketcher.Constraint("DistanceX", -1, 1, 0, 3, Q("16.62521 mm")))
sketch4.addConstraint(Sketcher.Constraint("DistanceY", -1, 1, 0, 3, Q("7.10871 mm")))
sketch4.addConstraint(Sketcher.Constraint("DistanceY", -1, 1, 8, 3, Q("16.253939 mm")))
sketch4.addConstraint(Sketcher.Constraint("DistanceX", -1, 1, 9, 3, Q("25.770438 mm")))
sketch4.addConstraint(Sketcher.Constraint("DistanceX", -1, 1, 15, 3, Q("7.479982 mm")))
sketch4.addConstraint(Sketcher.Constraint("DistanceY", -1, 1, 20, 3, Q("21.993442 mm")))
sketch4.addConstraint(Sketcher.Constraint("DistanceY", 27, 3, -1, 1, Q("7.776021 mm")))
sketch4.addConstraint(Sketcher.Constraint("DistanceX", -1, 1, 40, 3, Q("32.586641 mm")))
sketch4.addConstraint(Sketcher.Constraint("DistanceY", -1, 1, 40, 3, Q("20.939369 mm")))
sketch4.addConstraint(Sketcher.Constraint("DistanceY", -1, 1, 43, 3, Q("4.103021 mm")))
sketch4.addConstraint(Sketcher.Constraint("DistanceY", 45, 3, -1, 1, Q("6.721948 mm")))
sketch4.addConstraint(Sketcher.Constraint("DistanceY", 47, 3, -1, 1, Q("13.155781 mm")))
sketch4.addConstraint(Sketcher.Constraint("DistanceX", -1, 1, 49, 3, Q("10.675018 mm")))
sketch4.addConstraint(Sketcher.Constraint("DistanceX", -1, 1, 51, 3, Q("0.663779 mm")))
sketch4.addConstraint(Sketcher.Constraint("DistanceX", 5, 3, 3, 3, Q("9.145228 mm")))
sketch4.addConstraint(Sketcher.Constraint("DistanceY", 12, 3, 11, 3, Q("3.865228 mm")))
sketch4.addConstraint(Sketcher.Constraint("DistanceX", 2, 3, 22, 3, Q("9.145228 mm")))
sketch4.addConstraint(Sketcher.Constraint("DistanceX", 31, 3, 5, 3, Q("9.145228 mm")))
sketch4.addConstraint(Sketcher.Constraint("DistanceY", 20, 3, 38, 3, Q("5.37976 mm")))
sketch4.addConstraint(Sketcher.Constraint("DistanceX", 21, 3, 39, 3, Q("1.236578 mm")))
sketch4.addConstraint(Sketcher.Constraint("DistanceY", 21, 3, 39, 3, Q("5.633131 mm")))
sketch4.addConstraint(Sketcher.Constraint("DistanceX", 39, 3, 22, 3, Q("2.299508 mm")))
sketch4.addConstraint(Sketcher.Constraint("DistanceX", 22, 3, 40, 3, Q("2.243589 mm")))
sketch4.addConstraint(Sketcher.Constraint("DistanceY", 41, 3, 21, 3, Q("3.360579 mm")))
sketch4.addConstraint(Sketcher.Constraint("DistanceY", 26, 3, 44, 3, Q("3.360579 mm")))
sketch4.addConstraint(Sketcher.Constraint("DistanceY", 46, 3, 26, 3, Q("5.633131 mm")))
sketch4.addConstraint(Sketcher.Constraint("DistanceX", 50, 3, 30, 3, Q("1.236578 mm")))
sketch4.addConstraint(Sketcher.Constraint("DistanceX", 31, 3, 50, 3, Q("2.299508 mm")))
sketch4.addConstraint(Sketcher.Constraint("DistanceY", -1, 1, 21, 3, Q("19.242854 mm")))
sketch4.addConstraint(Sketcher.Constraint("DistanceY", -1, 1, 23, 3, Q("9.859298 mm")))
sketch4.addConstraint(Sketcher.Constraint("DistanceY", -1, 1, 24, 3, Q("4.358123 mm")))
sketch4.addConstraint(Sketcher.Constraint("DistanceY", 26, 3, -1, 1, Q("5.025433 mm")))
pocket2 = body.newObject("PartDesign::Pocket", "Pocket001")
pocket2.Profile = sketch4
pocket2.Length = 10

# Sketch on YZ plane
sketch5 = body.newObject("Sketcher::SketchObject", "Sketch004")
sketch5.AttachmentSupport = (doc.getObject("YZ_Plane"), [""])
sketch5.MapMode = "FlatFace"
sketch5.AttachmentOffset = App.Placement(App.Vector(0, 0, 16.62521), App.Rotation())
sketch5.addGeometry(Part.LineSegment(App.Vector(7.10871, 0, 0), App.Vector(27.10871, 0, 0)), False)
sketch5.addGeometry(Part.LineSegment(App.Vector(27.10871, 0, 0), App.Vector(30.10871, 25, 0)), False)
sketch5.addGeometry(Part.LineSegment(App.Vector(30.10871, 25, 0), App.Vector(7.10871, 25, 0)), False)
sketch5.addGeometry(Part.LineSegment(App.Vector(7.10871, 25, 0), App.Vector(7.10871, 0, 0)), False)
sketch5.addGeometry(Part.LineSegment(App.Vector(7.10871, 25, 0), App.Vector(7.10871, 0, 0)), True)  # axis
sketch5.addConstraint(Sketcher.Constraint("Coincident", 0, 2, 1, 1))
sketch5.addConstraint(Sketcher.Constraint("Coincident", 1, 2, 2, 1))
sketch5.addConstraint(Sketcher.Constraint("Coincident", 2, 2, 3, 1))
sketch5.addConstraint(Sketcher.Constraint("Coincident", 3, 2, 0, 1))
sketch5.addConstraint(Sketcher.Constraint("Horizontal", 0))
sketch5.addConstraint(Sketcher.Constraint("Horizontal", 2))
sketch5.addConstraint(Sketcher.Constraint("Vertical", 3))
sketch5.addConstraint(Sketcher.Constraint("Vertical", 4))
sketch5.addConstraint(Sketcher.Constraint("Coincident", 4, 1, 2, 2))
sketch5.addConstraint(Sketcher.Constraint("PointOnObject", 0, 2, -1))
sketch5.addConstraint(Sketcher.Constraint("PointOnObject", 4, 2, -1))
sketch5.addConstraint(Sketcher.Constraint("DistanceX", 0, 1, 0, 2, Q("20 mm")))
sketch5.addConstraint(Sketcher.Constraint("DistanceX", 2, 2, 2, 1, Q("23 mm")))
sketch5.addConstraint(Sketcher.Constraint("DistanceY", 3, 2, 3, 1, Q("25 mm")))
sketch5.addConstraint(Sketcher.Constraint("DistanceX", -1, 1, 0, 2, Q("27.10871 mm")))
groove = body.newObject("PartDesign::Groove", "Groove")
groove.Profile = sketch5
groove.ReferenceAxis = (sketch5, ["Axis0"])
groove.Angle = 360

doc.recompute()
